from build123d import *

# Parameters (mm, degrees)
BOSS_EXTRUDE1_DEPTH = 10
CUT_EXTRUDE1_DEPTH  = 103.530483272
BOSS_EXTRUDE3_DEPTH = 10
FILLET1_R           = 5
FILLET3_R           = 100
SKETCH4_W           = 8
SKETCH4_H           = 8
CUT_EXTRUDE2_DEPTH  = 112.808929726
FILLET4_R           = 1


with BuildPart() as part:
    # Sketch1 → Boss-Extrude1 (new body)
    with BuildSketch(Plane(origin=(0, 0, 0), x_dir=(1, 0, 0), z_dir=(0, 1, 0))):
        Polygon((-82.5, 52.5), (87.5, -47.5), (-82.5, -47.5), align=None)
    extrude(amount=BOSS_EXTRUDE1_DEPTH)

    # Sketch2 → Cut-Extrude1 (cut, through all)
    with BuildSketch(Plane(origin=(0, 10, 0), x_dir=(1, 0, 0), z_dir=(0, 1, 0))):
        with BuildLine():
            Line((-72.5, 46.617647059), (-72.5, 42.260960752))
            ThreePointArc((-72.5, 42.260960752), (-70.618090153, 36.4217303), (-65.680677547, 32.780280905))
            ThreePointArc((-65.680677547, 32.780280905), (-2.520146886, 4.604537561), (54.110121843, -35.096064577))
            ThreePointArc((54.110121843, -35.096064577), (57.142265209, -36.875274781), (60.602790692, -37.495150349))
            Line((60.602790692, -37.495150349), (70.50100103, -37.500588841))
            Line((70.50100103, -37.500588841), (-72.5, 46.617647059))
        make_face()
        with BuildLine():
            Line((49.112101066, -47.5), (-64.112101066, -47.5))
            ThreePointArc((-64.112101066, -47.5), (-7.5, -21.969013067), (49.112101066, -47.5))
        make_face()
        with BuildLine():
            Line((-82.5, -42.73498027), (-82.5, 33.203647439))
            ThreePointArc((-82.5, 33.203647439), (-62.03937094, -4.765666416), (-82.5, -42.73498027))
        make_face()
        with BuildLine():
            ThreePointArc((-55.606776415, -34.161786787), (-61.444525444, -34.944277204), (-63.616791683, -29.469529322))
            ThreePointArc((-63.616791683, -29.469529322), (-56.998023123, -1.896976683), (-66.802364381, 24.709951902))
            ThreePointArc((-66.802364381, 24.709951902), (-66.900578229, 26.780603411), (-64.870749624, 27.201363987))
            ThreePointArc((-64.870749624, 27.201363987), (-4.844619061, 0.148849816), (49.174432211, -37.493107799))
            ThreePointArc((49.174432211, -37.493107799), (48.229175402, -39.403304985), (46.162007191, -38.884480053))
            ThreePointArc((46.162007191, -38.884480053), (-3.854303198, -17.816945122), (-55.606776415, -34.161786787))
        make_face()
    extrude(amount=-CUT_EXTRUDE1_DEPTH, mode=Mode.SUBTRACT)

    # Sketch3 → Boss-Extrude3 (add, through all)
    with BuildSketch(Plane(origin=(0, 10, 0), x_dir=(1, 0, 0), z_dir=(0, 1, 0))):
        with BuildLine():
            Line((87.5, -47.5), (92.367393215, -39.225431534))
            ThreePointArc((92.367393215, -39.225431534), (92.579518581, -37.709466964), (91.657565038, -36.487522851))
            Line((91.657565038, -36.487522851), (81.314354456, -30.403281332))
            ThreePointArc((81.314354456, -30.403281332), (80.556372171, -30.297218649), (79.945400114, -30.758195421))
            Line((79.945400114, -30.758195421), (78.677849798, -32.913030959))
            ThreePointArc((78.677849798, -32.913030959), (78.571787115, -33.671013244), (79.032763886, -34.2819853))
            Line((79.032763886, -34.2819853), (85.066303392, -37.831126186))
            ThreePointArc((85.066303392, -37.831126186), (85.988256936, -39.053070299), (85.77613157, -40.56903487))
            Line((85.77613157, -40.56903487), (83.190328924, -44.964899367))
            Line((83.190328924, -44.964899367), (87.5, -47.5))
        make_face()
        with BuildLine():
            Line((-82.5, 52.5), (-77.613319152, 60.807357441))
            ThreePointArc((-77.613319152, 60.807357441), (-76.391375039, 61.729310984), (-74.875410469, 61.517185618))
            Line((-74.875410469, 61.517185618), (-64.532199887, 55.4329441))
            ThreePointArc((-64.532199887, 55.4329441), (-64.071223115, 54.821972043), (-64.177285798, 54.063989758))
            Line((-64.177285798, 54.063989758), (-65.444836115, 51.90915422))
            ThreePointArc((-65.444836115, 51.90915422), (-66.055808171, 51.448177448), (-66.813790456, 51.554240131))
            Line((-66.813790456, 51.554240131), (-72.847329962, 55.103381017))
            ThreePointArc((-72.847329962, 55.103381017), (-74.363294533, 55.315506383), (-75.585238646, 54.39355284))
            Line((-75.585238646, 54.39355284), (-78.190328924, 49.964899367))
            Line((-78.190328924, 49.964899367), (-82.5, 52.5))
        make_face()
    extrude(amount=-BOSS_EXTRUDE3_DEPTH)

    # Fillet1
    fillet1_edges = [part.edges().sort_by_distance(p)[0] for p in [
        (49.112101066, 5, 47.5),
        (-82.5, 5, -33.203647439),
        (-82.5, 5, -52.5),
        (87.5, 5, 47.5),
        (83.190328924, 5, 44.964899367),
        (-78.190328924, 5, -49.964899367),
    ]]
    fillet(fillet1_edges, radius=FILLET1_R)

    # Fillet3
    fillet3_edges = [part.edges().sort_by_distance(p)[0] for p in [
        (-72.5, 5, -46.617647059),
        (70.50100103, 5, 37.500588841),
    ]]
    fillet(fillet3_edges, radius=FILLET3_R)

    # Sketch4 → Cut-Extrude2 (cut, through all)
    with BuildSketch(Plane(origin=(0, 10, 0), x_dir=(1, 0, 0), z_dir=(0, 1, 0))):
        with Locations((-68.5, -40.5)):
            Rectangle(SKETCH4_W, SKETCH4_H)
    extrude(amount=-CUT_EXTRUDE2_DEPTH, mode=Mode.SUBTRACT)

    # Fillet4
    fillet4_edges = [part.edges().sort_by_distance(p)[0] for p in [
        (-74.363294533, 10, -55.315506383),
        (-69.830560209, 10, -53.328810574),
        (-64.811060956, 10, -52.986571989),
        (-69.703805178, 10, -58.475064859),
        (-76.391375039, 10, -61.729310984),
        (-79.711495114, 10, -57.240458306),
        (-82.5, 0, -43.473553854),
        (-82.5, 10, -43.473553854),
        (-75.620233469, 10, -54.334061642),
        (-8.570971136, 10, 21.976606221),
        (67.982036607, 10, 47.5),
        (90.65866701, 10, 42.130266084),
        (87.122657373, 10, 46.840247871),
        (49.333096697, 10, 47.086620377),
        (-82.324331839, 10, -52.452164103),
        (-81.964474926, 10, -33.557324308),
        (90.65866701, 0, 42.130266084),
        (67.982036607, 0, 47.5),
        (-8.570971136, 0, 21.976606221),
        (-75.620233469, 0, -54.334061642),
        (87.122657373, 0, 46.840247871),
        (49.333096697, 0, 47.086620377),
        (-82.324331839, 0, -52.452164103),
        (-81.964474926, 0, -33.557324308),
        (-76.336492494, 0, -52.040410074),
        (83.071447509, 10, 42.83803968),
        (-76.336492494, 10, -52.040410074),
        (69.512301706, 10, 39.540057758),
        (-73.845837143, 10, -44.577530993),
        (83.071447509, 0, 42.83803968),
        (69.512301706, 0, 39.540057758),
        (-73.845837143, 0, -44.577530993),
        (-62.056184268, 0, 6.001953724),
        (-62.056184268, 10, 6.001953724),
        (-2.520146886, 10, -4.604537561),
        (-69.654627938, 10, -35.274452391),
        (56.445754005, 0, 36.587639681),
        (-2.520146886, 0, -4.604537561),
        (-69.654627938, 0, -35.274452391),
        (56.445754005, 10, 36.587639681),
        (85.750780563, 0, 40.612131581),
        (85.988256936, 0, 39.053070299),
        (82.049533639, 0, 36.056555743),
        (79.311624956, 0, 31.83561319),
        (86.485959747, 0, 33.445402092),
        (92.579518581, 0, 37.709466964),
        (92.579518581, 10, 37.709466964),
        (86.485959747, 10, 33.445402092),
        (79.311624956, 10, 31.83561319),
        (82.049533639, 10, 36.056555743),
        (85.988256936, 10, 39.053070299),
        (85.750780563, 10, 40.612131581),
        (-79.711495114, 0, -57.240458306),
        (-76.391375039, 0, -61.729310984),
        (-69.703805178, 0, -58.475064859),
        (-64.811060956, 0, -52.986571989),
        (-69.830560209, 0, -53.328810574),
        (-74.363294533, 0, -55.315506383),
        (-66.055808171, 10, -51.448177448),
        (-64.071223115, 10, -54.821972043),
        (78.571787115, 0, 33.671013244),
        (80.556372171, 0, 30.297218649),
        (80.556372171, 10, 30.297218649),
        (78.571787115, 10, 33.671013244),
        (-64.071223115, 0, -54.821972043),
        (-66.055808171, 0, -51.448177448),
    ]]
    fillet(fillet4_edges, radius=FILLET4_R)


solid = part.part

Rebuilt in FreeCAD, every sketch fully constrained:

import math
import FreeCAD as App
import Part
import Sketcher


def edges_at(feature, points):
    """Names of the edges that pass closest to the given points."""
    edges = feature.Shape.Edges
    near = lambda p: min(range(len(edges)), key=lambda i: edges[i].distToShape(Part.Vertex(*p))[0])
    return sorted({f"Edge{near(p) + 1}" for p in points})

doc = App.newDocument("Part")
body = doc.addObject("PartDesign::Body", "Body")

# Sketch on XZ plane
sketch1 = body.newObject("Sketcher::SketchObject", "Sketch")
sketch1.AttachmentSupport = (doc.getObject("XZ_Plane"), [""])
sketch1.MapMode = "FlatFace"
sketch1.addGeometry([
    Part.LineSegment(App.Vector(88, 48, 0), App.Vector(-82, -52, 0)),
    Part.LineSegment(App.Vector(-82, -52, 0), App.Vector(-82, 48, 0)),
    Part.LineSegment(App.Vector(-82, 48, 0), App.Vector(88, 48, 0)),
], False)
sketch1.addConstraint([
    Sketcher.Constraint("Coincident", 0, 2, 1, 1),
    Sketcher.Constraint("Coincident", 1, 2, 2, 1),
    Sketcher.Constraint("Coincident", 2, 2, 0, 1),
    Sketcher.Constraint("Vertical", 1),
    Sketcher.Constraint("Horizontal", 2),
    Sketcher.Constraint("DistanceX", 2, 1, 2, 2, 170.0),
    Sketcher.Constraint("DistanceY", 1, 1, 1, 2, 100.0),
    Sketcher.Constraint("DistanceX", 0, 2, -1, 1, 82.5),
    Sketcher.Constraint("DistanceY", 0, 2, -1, 1, 52.5),
])
pad1 = body.newObject("PartDesign::Pad", "Pad")
pad1.Profile = sketch1
pad1.Length = 10
pad1.Reversed = True

# Sketch on XZ plane
sketch2 = body.newObject("Sketcher::SketchObject", "Sketch001")
sketch2.AttachmentSupport = (doc.getObject("XZ_Plane"), [""])
sketch2.MapMode = "FlatFace"
sketch2.AttachmentOffset = App.Placement(App.Vector(0, 0, -10), App.Rotation())
sketch2.addGeometry([
    Part.LineSegment(App.Vector(-72.5, -46.6, 0), App.Vector(-72.5, -42.3, 0)),  # 0
    Part.ArcOfCircle(Part.Circle(App.Vector(-62.5, -42.3, 0), App.Vector(0, 0, 1), 10), math.radians(109), math.radians(180)),  # 1
    Part.ArcOfCircle(Part.Circle(App.Vector(-180.5, 309.6, 0), App.Vector(0, 0, 1), 361.1), math.radians(-71), math.radians(-49)),  # 2
    Part.ArcOfCircle(Part.Circle(App.Vector(60.6, 27.5, 0), App.Vector(0, 0, 1), 10), math.radians(90), math.radians(131)),  # 3
    Part.LineSegment(App.Vector(60.6, 37.5, 0), App.Vector(70.5, 37.5, 0)),  # 4
    Part.LineSegment(App.Vector(70.5, 37.5, 0), App.Vector(-72.5, -46.6, 0)),  # 5
    Part.LineSegment(App.Vector(-64.1, 47.5, 0), App.Vector(49.1, 47.5, 0)),  # 6
    Part.ArcOfCircle(Part.Circle(App.Vector(-7.5, 97.5, 0), App.Vector(0, 0, 1), 75.5), math.radians(-139), math.radians(-41)),  # 7
    Part.LineSegment(App.Vector(-82.5, -33.2, 0), App.Vector(-82.5, 42.7, 0)),  # 8
    Part.ArcOfCircle(Part.Circle(App.Vector(-107.5, 4.8, 0), App.Vector(0, 0, 1), 45.5), math.radians(-57), math.radians(57)),  # 9
    Part.ArcOfCircle(Part.Circle(App.Vector(-59, 30.8, 0), App.Vector(0, 0, 1), 4.8), math.radians(44), math.radians(196)),  # 10
    Part.ArcOfCircle(Part.Circle(App.Vector(-7.5, 96.4, 0), App.Vector(0, 0, 1), 78.6), math.radians(-128), math.radians(-47)),  # 11
    Part.ArcOfCircle(Part.Circle(App.Vector(47.5, 37.9, 0), App.Vector(0, 0, 1), 1.7), math.radians(-13), math.radians(143)),  # 12
    Part.ArcOfCircle(Part.Circle(App.Vector(-180.5, 309.6, 0), App.Vector(0, 0, 1), 356.1), math.radians(-71), math.radians(-50)),  # 13
    Part.ArcOfCircle(Part.Circle(App.Vector(-65.6, -25.8, 0), App.Vector(0, 0, 1), 1.6), math.radians(137), math.radians(299)),  # 14
    Part.ArcOfCircle(Part.Circle(App.Vector(-105.8, 4.8, 0), App.Vector(0, 0, 1), 48.9), math.radians(-37), math.radians(30)),  # 15
], False)
sketch2.addConstraint([
    Sketcher.Constraint("Tangent", 0, 2, 1, 2),
    Sketcher.Constraint("Tangent", 1, 1, 2, 1),
    Sketcher.Constraint("Tangent", 2, 2, 3, 2),
    Sketcher.Constraint("Tangent", 3, 1, 4, 1),
    Sketcher.Constraint("Coincident", 4, 2, 5, 1),
    Sketcher.Constraint("Coincident", 5, 2, 0, 1),
    Sketcher.Constraint("Coincident", 6, 1, 7, 1),
    Sketcher.Constraint("Coincident", 7, 2, 6, 2),
    Sketcher.Constraint("Coincident", 8, 1, 9, 1),
    Sketcher.Constraint("Coincident", 9, 2, 8, 2),
    Sketcher.Constraint("Coincident", 10, 1, 11, 1),
    Sketcher.Constraint("Coincident", 11, 2, 12, 2),
    Sketcher.Constraint("Coincident", 12, 1, 13, 2),
    Sketcher.Constraint("Coincident", 13, 1, 14, 2),
    Sketcher.Constraint("Coincident", 14, 1, 15, 1),
    Sketcher.Constraint("Coincident", 15, 2, 10, 2),
    Sketcher.Constraint("Vertical", 0),
    Sketcher.Constraint("Horizontal", 6),
    Sketcher.Constraint("Vertical", 8),
    Sketcher.Constraint("Coincident", 13, 3, 2, 3),
    Sketcher.Constraint("Equal", 1, 3),
    Sketcher.Constraint("Horizontal", 9, 3, 15, 3),
    Sketcher.Constraint("Vertical", 7, 3, 11, 3),
    Sketcher.Constraint("Radius", 1, 10.0),
    Sketcher.Constraint("DistanceX", 1, 3, 7, 3, 55.0),
    Sketcher.Constraint("DistanceX", 9, 3, 1, 3, 45.0),
    Sketcher.Constraint("DistanceX", 8, 1, 0, 2, 10.0),
    Sketcher.Constraint("DistanceX", 1, 3, -1, 1, 62.5),
    Sketcher.Constraint("DistanceY", -1, 1, 7, 3, 97.5),
    Sketcher.Constraint("DistanceY", -1, 1, 6, 1, 47.5),
    Sketcher.Constraint("Radius", 12, 1.697699),
    Sketcher.Constraint("Radius", 2, 361.089118),
    Sketcher.Constraint("Radius", 9, 45.460629),
    Sketcher.Constraint("Radius", 14, 1.595879),
    Sketcher.Constraint("Radius", 15, 48.874271),
    Sketcher.Constraint("DistanceX", -1, 1, 4, 2, 70.501001),
    Sketcher.Constraint("Radius", 7, 75.530987),
    Sketcher.Constraint("Radius", 10, 4.783853),
    Sketcher.Constraint("Radius", 11, 78.645254),
    Sketcher.Constraint("Radius", 13, 356.066614),
    Sketcher.Constraint("DistanceY", 5, 2, 8, 1, 13.414),
    Sketcher.Constraint("DistanceY", 3, 3, 2, 3, 282.0616),
    Sketcher.Constraint("DistanceY", 3, 3, 11, 3, 68.882502),
    Sketcher.Constraint("DistanceX", 10, 3, 12, 3, 106.543801),
    Sketcher.Constraint("DistanceX", 15, 2, 10, 3, 4.5903),
    Sketcher.Constraint("Distance", 4, 9.898212),
    Sketcher.Constraint("DistanceY", 0, 1, 0, 2, 4.356686),
    Sketcher.Constraint("DistanceY", 1, 3, -1, 1, 42.260961),
    Sketcher.Constraint("DistanceY", -1, 1, 2, 3, 309.556752),
    Sketcher.Constraint("DistanceX", 10, 3, -1, 1, 59.026492),
    Sketcher.Constraint("DistanceX", 14, 3, -1, 1, 65.639361),
    Sketcher.Constraint("DistanceY", 14, 3, -1, 1, 25.80277),
    Sketcher.Constraint("DistanceY", -1, 1, 11, 2, 38.88448),
    Sketcher.Constraint("DistanceY", 14, 1, -1, 1, 24.709952),
])
pocket1 = body.newObject("PartDesign::Pocket", "Pocket")
pocket1.Profile = sketch2
pocket1.Type = "ThroughAll"
pocket1.Reversed = True

# Sketch on XZ plane
sketch3 = body.newObject("Sketcher::SketchObject", "Sketch002")
sketch3.AttachmentSupport = (doc.getObject("XZ_Plane"), [""])
sketch3.MapMode = "FlatFace"
sketch3.AttachmentOffset = App.Placement(App.Vector(0, 0, -10), App.Rotation())
sketch3.addGeometry([
    Part.LineSegment(App.Vector(87.5, 47.5, 0), App.Vector(92.4, 39.2, 0)),  # 0
    Part.ArcOfCircle(Part.Circle(App.Vector(90.6, 38.2, 0), App.Vector(0, 0, 1), 2), math.radians(-60), math.radians(30)),  # 1
    Part.LineSegment(App.Vector(91.7, 36.5, 0), App.Vector(81.3, 30.4, 0)),  # 2
    Part.ArcOfCircle(Part.Circle(App.Vector(80.8, 31.3, 0), App.Vector(0, 0, 1), 1), math.radians(-150), math.radians(-60)),  # 3
    Part.LineSegment(App.Vector(79.9, 30.8, 0), App.Vector(78.7, 32.9, 0)),  # 4
    Part.ArcOfCircle(Part.Circle(App.Vector(79.5, 33.4, 0), App.Vector(0, 0, 1), 1), math.radians(120), math.radians(210)),  # 5
    Part.LineSegment(App.Vector(79, 34.3, 0), App.Vector(85.1, 37.8, 0)),  # 6
    Part.ArcOfCircle(Part.Circle(App.Vector(84.1, 39.6, 0), App.Vector(0, 0, 1), 2), math.radians(-60), math.radians(30)),  # 7
    Part.LineSegment(App.Vector(85.8, 40.6, 0), App.Vector(83.2, 45, 0)),  # 8
    Part.LineSegment(App.Vector(83.2, 45, 0), App.Vector(87.5, 47.5, 0)),  # 9
    Part.LineSegment(App.Vector(-77.6, -60.8, 0), App.Vector(-82.5, -52.5, 0)),  # 10
    Part.LineSegment(App.Vector(-82.5, -52.5, 0), App.Vector(-78.2, -50, 0)),  # 11
    Part.LineSegment(App.Vector(-78.2, -50, 0), App.Vector(-75.6, -54.4, 0)),  # 12
    Part.ArcOfCircle(Part.Circle(App.Vector(-73.9, -53.4, 0), App.Vector(0, 0, 1), 2), math.radians(-150), math.radians(-60)),  # 13
    Part.LineSegment(App.Vector(-72.8, -55.1, 0), App.Vector(-66.8, -51.6, 0)),  # 14
    Part.ArcOfCircle(Part.Circle(App.Vector(-66.3, -52.4, 0), App.Vector(0, 0, 1), 1), math.radians(30), math.radians(120)),  # 15
    Part.LineSegment(App.Vector(-65.4, -51.9, 0), App.Vector(-64.2, -54.1, 0)),  # 16
    Part.ArcOfCircle(Part.Circle(App.Vector(-65, -54.6, 0), App.Vector(0, 0, 1), 1), math.radians(-60), math.radians(30)),  # 17
    Part.LineSegment(App.Vector(-64.5, -55.4, 0), App.Vector(-74.9, -61.5, 0)),  # 18
    Part.ArcOfCircle(Part.Circle(App.Vector(-75.9, -59.8, 0), App.Vector(0, 0, 1), 2), math.radians(-150), math.radians(-60)),  # 19
], False)
sketch3.addConstraint([
    Sketcher.Constraint("Tangent", 0, 2, 1, 2),
    Sketcher.Constraint("Tangent", 1, 1, 2, 1),
    Sketcher.Constraint("Tangent", 2, 2, 3, 2),
    Sketcher.Constraint("Tangent", 3, 1, 4, 1),
    Sketcher.Constraint("Tangent", 4, 2, 5, 2),
    Sketcher.Constraint("Tangent", 5, 1, 6, 1),
    Sketcher.Constraint("Tangent", 6, 2, 7, 1),
    Sketcher.Constraint("Tangent", 7, 2, 8, 1),
    Sketcher.Constraint("Coincident", 8, 2, 9, 1),
    Sketcher.Constraint("Coincident", 9, 2, 0, 1),
    Sketcher.Constraint("Coincident", 10, 2, 11, 1),
    Sketcher.Constraint("Coincident", 11, 2, 12, 1),
    Sketcher.Constraint("Tangent", 12, 2, 13, 1),
    Sketcher.Constraint("Tangent", 13, 2, 14, 1),
    Sketcher.Constraint("Tangent", 14, 2, 15, 2),
    Sketcher.Constraint("Tangent", 15, 1, 16, 1),
    Sketcher.Constraint("Tangent", 16, 2, 17, 2),
    Sketcher.Constraint("Tangent", 17, 1, 18, 1),
    Sketcher.Constraint("Tangent", 18, 2, 19, 2),
    Sketcher.Constraint("Tangent", 19, 1, 10, 1),
    Sketcher.Constraint("Equal", 3, 5),
    Sketcher.Constraint("Equal", 1, 7),
    Sketcher.Constraint("Equal", 7, 13),
    Sketcher.Constraint("Equal", 5, 15),
    Sketcher.Constraint("Equal", 15, 17),
    Sketcher.Constraint("Equal", 13, 19),
    Sketcher.Constraint("Perpendicular", 0, 2),
    Sketcher.Constraint("Perpendicular", 2, 4),
    Sketcher.Constraint("Perpendicular", 4, 6),
    Sketcher.Constraint("Perpendicular", 6, 8),
    Sketcher.Constraint("Perpendicular", 8, 9),
    Sketcher.Constraint("Perpendicular", 9, 10),
    Sketcher.Constraint("Perpendicular", 10, 11),
    Sketcher.Constraint("Perpendicular", 11, 12),
    Sketcher.Constraint("Perpendicular", 12, 14),
    Sketcher.Constraint("Perpendicular", 14, 16),
    Sketcher.Constraint("Perpendicular", 16, 18),
    Sketcher.Constraint("Equal", 9, 11),
    Sketcher.Constraint("Equal", 6, 14),
    Sketcher.Constraint("Equal", 4, 16),
    Sketcher.Constraint("Radius", 1, 2.0),
    Sketcher.Constraint("Radius", 3, 1.0),
    Sketcher.Constraint("Distance", 2, 12.0),
    Sketcher.Constraint("Distance", 6, 7.0),
    Sketcher.Constraint("Distance", 0, 9.6),
    Sketcher.Constraint("Distance", 4, 2.5),
    Sketcher.Constraint("DistanceX", -1, 1, 9, 2, 87.5),
    Sketcher.Constraint("DistanceY", -1, 1, 9, 2, 47.5),
    Sketcher.Constraint("DistanceX", 10, 2, -1, 1, 82.5),
    Sketcher.Constraint("DistanceY", 10, 2, -1, 1, 52.5),
    Sketcher.Constraint("DistanceX", 11, 2, 13, 2, 5.342999),
    Sketcher.Constraint("DistanceX", -1, 1, 3, 1, 79.9454),
])
pad2 = body.newObject("PartDesign::Pad", "Pad001")
pad2.Profile = sketch3
pad2.Length = 10
doc.recompute()

fillet = body.newObject("PartDesign::Fillet", "Fillet")
fillet.Base = (pad2, edges_at(pad2, [
    (49.112, 5, 47.5),
    (-82.5, 5, -33.204),
    (-82.5, 5, -52.5),
    (87.5, 5, 47.5),
    (83.19, 5, 44.965),
    (-78.19, 5, -49.965),
]))
fillet.Radius = 5
doc.recompute()

fillet2 = body.newObject("PartDesign::Fillet", "Fillet001")
fillet2.Base = (fillet, edges_at(fillet, [(-72.5, 5, -46.618), (70.501, 5, 37.501)]))
fillet2.Radius = 100

# Sketch on XZ plane
sketch4 = body.newObject("Sketcher::SketchObject", "Sketch003")
sketch4.AttachmentSupport = (doc.getObject("XZ_Plane"), [""])
sketch4.MapMode = "FlatFace"
sketch4.AttachmentOffset = App.Placement(App.Vector(0, 0, -10), App.Rotation())
sketch4.addGeometry([
    Part.LineSegment(App.Vector(-72, 36, 0), App.Vector(-72, 44, 0)),
    Part.LineSegment(App.Vector(-72, 44, 0), App.Vector(-64, 44, 0)),
    Part.LineSegment(App.Vector(-64, 44, 0), App.Vector(-64, 36, 0)),
    Part.LineSegment(App.Vector(-64, 36, 0), App.Vector(-72, 36, 0)),
], False)
sketch4.addConstraint([
    Sketcher.Constraint("Coincident", 0, 2, 1, 1),
    Sketcher.Constraint("Coincident", 1, 2, 2, 1),
    Sketcher.Constraint("Coincident", 2, 2, 3, 1),
    Sketcher.Constraint("Coincident", 3, 2, 0, 1),
    Sketcher.Constraint("Vertical", 0),
    Sketcher.Constraint("Horizontal", 1),
    Sketcher.Constraint("Vertical", 2),
    Sketcher.Constraint("Horizontal", 3),
    Sketcher.Constraint("Equal", 3, 0),
    Sketcher.Constraint("DistanceX", 1, 1, 1, 2, 8.0),
    Sketcher.Constraint("DistanceX", 0, 2, -1, 1, 72.5),
    Sketcher.Constraint("DistanceY", -1, 1, 0, 2, 44.5),
])
pocket2 = body.newObject("PartDesign::Pocket", "Pocket001")
pocket2.Profile = sketch4
pocket2.Type = "ThroughAll"
pocket2.Reversed = True
doc.recompute()

fillet3 = body.newObject("PartDesign::Fillet", "Fillet002")
fillet3.Base = (pocket2, edges_at(pocket2, [
    (-74.363, 10, -55.316),
    (-69.831, 10, -53.329),
    (-64.811, 10, -52.987),
    (-69.704, 10, -58.475),
    (-76.391, 10, -61.729),
    (-79.711, 10, -57.24),
    (-82.5, 0, -43.474),
    (-82.5, 10, -43.474),
    (-75.62, 10, -54.334),
    (-8.571, 10, 21.977),
    (67.982, 10, 47.5),
    (90.659, 10, 42.13),
    (87.123, 10, 46.84),
    (49.333, 10, 47.087),
    (-82.324, 10, -52.452),
    (-81.964, 10, -33.557),
    (90.659, 0, 42.13),
    (67.982, 0, 47.5),
    (-8.571, 0, 21.977),
    (-75.62, 0, -54.334),
    (87.123, 0, 46.84),
    (49.333, 0, 47.087),
    (-82.324, 0, -52.452),
    (-81.964, 0, -33.557),
    (-76.336, 0, -52.04),
    (83.071, 10, 42.838),
    (-76.336, 10, -52.04),
    (69.512, 10, 39.54),
    (-73.846, 10, -44.578),
    (83.071, 0, 42.838),
    (69.512, 0, 39.54),
    (-73.846, 0, -44.578),
    (-62.056, 0, 6.002),
    (-62.056, 10, 6.002),
    (-2.52, 10, -4.605),
    (-69.655, 10, -35.274),
    (56.446, 0, 36.588),
    (-2.52, 0, -4.605),
    (-69.655, 0, -35.274),
    (56.446, 10, 36.588),
    (85.751, 0, 40.612),
    (85.988, 0, 39.053),
    (82.05, 0, 36.057),
    (79.312, 0, 31.836),
    (86.486, 0, 33.445),
    (92.58, 0, 37.709),
    (92.58, 10, 37.709),
    (86.486, 10, 33.445),
    (79.312, 10, 31.836),
    (82.05, 10, 36.057),
    (85.988, 10, 39.053),
    (85.751, 10, 40.612),
    (-79.711, 0, -57.24),
    (-76.391, 0, -61.729),
    (-69.704, 0, -58.475),
    (-64.811, 0, -52.987),
    (-69.831, 0, -53.329),
    (-74.363, 0, -55.316),
    (-66.056, 10, -51.448),
    (-64.071, 10, -54.822),
    (78.572, 0, 33.671),
    (80.556, 0, 30.297),
    (80.556, 10, 30.297),
    (78.572, 10, 33.671),
    (-64.071, 0, -54.822),
    (-66.056, 0, -51.448),
]))
fillet3.Radius = 1

doc.recompute()
